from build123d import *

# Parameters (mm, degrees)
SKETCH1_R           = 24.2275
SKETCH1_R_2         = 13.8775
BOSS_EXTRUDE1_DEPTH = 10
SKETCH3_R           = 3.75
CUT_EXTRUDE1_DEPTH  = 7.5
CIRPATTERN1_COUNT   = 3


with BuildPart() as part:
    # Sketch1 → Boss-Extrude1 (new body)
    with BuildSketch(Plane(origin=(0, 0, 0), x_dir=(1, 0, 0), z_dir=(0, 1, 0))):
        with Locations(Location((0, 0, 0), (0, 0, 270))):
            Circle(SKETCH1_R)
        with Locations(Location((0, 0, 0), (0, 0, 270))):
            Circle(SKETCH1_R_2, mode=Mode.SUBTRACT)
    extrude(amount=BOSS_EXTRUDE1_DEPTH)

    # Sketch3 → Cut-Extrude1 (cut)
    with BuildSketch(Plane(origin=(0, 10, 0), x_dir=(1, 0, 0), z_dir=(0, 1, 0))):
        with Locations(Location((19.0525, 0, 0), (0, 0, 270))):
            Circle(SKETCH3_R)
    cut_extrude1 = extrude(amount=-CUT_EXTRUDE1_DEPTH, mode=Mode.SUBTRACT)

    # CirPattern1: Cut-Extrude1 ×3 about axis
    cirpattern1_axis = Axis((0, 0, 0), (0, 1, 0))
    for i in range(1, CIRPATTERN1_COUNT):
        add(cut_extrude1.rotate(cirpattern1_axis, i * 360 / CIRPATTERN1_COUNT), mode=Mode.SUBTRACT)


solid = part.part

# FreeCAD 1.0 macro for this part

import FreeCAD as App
import Part
import Sketcher
from FreeCAD import Vector
Q = App.Units.Quantity

doc = App.newDocument("Part")
body = doc.addObject("PartDesign::Body", "Body")

sketch1 = doc.addObject("Sketcher::SketchObject", "Sketch")
body.addObject(sketch1)
sketch1.AttachmentSupport = (doc.XZ_Plane, [""])
sketch1.MapMode = "FlatFace"
sketch1.addGeometry([
    Part.Circle(Vector(0, 0, 0), Vector(0, 0, 1), 24.2275),
    Part.Circle(Vector(0, 0, 0), Vector(0, 0, 1), 13.8775),
], False)
sketch1.addConstraint([
    Sketcher.Constraint("Coincident", 0, 3, -1, 1),
    Sketcher.Constraint("Coincident", 1, 3, -1, 1),
    Sketcher.Constraint("Diameter", 0, Q("48.455 mm")),
    Sketcher.Constraint("Diameter", 1, Q("27.755 mm")),
])
pad1 = doc.addObject("PartDesign::Pad", "Pad")
body.addObject(pad1)
pad1.Profile = sketch1
pad1.Length = 10
pad1.Reversed = True

sketch2 = doc.addObject("Sketcher::SketchObject", "Sketch001")
body.addObject(sketch2)
sketch2.AttachmentSupport = (doc.XZ_Plane, [""])
sketch2.MapMode = "FlatFace"
sketch2.AttachmentOffset = App.Placement(Vector(0, 0, -10), App.Rotation())
sketch2.addGeometry(Part.Circle(Vector(19.0525, 0, 0), Vector(0, 0, 1), 3.75), False)
sketch2.addConstraint([
    Sketcher.Constraint("PointOnObject", 0, 3, -1),
    Sketcher.Constraint("Diameter", 0, Q("7.5 mm")),
    Sketcher.Constraint("DistanceX", -1, 1, 0, 3, Q("19.0525 mm")),
])
pocket1 = doc.addObject("PartDesign::Pocket", "Pocket")
body.addObject(pocket1)
pocket1.Profile = sketch2
pocket1.Length = 7.5
pocket1.Reversed = True
doc.recompute()

polarpattern = doc.addObject("PartDesign::PolarPattern", "PolarPattern")
body.addObject(polarpattern)
polarpattern.Originals = [pocket1]
polarpattern.Axis = (doc.Y_Axis, [""])
polarpattern.Angle = 360
polarpattern.Occurrences = 3
body.Tip = polarpattern

doc.recompute()
